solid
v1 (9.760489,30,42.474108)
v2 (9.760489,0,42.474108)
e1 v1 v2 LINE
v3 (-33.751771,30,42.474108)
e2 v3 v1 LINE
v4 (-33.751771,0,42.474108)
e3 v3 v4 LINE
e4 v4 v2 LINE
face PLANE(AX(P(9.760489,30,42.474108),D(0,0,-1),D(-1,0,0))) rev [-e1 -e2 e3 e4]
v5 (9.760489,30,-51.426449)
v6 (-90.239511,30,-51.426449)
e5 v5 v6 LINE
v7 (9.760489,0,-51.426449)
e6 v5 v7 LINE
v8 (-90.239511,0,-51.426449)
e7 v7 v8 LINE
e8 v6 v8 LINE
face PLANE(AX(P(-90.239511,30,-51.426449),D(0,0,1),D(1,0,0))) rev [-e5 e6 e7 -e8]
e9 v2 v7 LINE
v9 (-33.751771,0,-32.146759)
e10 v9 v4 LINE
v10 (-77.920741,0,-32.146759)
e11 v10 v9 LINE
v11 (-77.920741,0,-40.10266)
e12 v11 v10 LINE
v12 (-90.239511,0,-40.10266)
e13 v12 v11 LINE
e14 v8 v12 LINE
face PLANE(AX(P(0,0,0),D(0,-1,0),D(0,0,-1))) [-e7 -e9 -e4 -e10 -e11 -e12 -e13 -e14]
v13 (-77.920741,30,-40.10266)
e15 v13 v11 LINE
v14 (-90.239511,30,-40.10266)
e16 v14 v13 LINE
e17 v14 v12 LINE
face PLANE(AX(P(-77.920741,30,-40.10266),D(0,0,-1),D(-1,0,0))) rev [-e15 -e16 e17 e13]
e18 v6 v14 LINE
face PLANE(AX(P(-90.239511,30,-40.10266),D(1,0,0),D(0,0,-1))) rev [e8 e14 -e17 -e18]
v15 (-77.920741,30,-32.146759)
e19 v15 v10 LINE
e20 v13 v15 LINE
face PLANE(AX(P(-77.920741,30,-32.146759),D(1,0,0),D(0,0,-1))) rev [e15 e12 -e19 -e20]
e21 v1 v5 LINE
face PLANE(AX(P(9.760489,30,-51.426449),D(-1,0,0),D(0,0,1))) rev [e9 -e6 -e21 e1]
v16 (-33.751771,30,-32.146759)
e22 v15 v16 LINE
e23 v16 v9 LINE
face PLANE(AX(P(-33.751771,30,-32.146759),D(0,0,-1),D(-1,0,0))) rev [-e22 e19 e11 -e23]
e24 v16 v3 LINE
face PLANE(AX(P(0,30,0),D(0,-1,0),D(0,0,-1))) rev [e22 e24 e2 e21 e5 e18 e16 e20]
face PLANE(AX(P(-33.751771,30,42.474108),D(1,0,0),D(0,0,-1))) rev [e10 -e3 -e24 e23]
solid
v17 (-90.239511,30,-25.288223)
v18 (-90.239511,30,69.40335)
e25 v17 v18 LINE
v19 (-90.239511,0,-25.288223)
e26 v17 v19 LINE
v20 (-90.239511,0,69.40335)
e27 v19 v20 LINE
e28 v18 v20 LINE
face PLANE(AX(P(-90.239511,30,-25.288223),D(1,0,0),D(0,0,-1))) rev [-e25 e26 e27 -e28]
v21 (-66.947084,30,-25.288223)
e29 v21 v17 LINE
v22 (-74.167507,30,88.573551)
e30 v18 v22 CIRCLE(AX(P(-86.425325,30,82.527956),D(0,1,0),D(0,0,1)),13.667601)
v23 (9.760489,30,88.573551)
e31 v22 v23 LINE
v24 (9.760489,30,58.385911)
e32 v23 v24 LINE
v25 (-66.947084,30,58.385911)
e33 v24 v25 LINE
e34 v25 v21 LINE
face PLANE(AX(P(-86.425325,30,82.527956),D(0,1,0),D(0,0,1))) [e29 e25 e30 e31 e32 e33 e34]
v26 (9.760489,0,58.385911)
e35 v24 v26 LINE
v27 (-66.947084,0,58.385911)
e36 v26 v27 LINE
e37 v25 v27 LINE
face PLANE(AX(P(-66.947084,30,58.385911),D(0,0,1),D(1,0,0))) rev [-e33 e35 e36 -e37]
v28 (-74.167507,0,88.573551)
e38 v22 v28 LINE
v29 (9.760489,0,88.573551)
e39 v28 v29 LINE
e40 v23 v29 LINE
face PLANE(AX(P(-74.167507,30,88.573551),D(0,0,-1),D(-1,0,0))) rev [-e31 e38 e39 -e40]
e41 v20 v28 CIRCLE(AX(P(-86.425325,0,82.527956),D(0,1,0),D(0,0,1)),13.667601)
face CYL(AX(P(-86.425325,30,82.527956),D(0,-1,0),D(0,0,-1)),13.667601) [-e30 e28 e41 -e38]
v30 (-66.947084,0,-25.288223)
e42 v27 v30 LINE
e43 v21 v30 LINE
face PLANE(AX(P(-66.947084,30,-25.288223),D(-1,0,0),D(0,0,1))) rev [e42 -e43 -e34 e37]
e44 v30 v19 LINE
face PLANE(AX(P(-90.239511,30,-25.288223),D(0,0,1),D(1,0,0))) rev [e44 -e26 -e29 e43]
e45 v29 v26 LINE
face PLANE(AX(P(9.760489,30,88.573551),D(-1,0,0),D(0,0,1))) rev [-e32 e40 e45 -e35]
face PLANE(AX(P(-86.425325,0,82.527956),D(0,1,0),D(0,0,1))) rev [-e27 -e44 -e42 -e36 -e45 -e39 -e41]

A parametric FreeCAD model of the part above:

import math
import FreeCAD as App
import Part
import Sketcher

doc = App.newDocument("Part")
params = doc.addObject("Spreadsheet::Sheet", "Params")
for row, (alias, value) in enumerate([
    ("pad1_length", "30 mm"),
    ("sketch2_width", "100 mm"),
    ("pad2_length", "30 mm"),
], start=1):
    params.set(f"A{row}", alias)
    params.set(f"B{row}", "=" + value)
    params.setAlias(f"B{row}", alias)

body = doc.addObject("PartDesign::Body", "Body")

sketch1 = doc.addObject("Sketcher::SketchObject", "Sketch")
body.addObject(sketch1)
sketch1.AttachmentSupport = (doc.XZ_Plane, [""])
sketch1.MapMode = "FlatFace"
sketch1.addGeometry([
    Part.LineSegment(App.Vector(-67, -25, 0), App.Vector(-90, -25, 0)),
    Part.LineSegment(App.Vector(-90, -25, 0), App.Vector(-90, 69, 0)),
    Part.ArcOfCircle(Part.Circle(App.Vector(-86, 83, 0), App.Vector(0, 0, 1), 14), math.radians(26), math.radians(254)),
    Part.LineSegment(App.Vector(-74, 89, 0), App.Vector(10, 89, 0)),
    Part.LineSegment(App.Vector(10, 89, 0), App.Vector(10, 58, 0)),
    Part.LineSegment(App.Vector(10, 58, 0), App.Vector(-67, 58, 0)),
    Part.LineSegment(App.Vector(-67, 58, 0), App.Vector(-67, -25, 0)),
], False)
sketch1.addConstraint([
    Sketcher.Constraint("Coincident", 0, 2, 1, 1),
    Sketcher.Constraint("Coincident", 1, 2, 2, 2),
    Sketcher.Constraint("Coincident", 2, 1, 3, 1),
    Sketcher.Constraint("Coincident", 3, 2, 4, 1),
    Sketcher.Constraint("Coincident", 4, 2, 5, 1),
    Sketcher.Constraint("Coincident", 5, 2, 6, 1),
    Sketcher.Constraint("Coincident", 6, 2, 0, 1),
    Sketcher.Constraint("Horizontal", 0),
    Sketcher.Constraint("Vertical", 1),
    Sketcher.Constraint("Horizontal", 3),
    Sketcher.Constraint("Vertical", 4),
    Sketcher.Constraint("Horizontal", 5),
    Sketcher.Constraint("Vertical", 6),
    Sketcher.Constraint("DistanceX", 1, 2, 3, 2, 100.0),
    Sketcher.Constraint("Radius", 2, 13.667601),
    Sketcher.Constraint("DistanceY", 4, 2, 4, 1, 30.18764),
    Sketcher.Constraint("DistanceY", 1, 2, 2, 1, 19.170201),
    Sketcher.Constraint("DistanceX", 0, 2, 0, 1, 23.292427),
    Sketcher.Constraint("DistanceX", 3, 1, 3, 2, 83.927996),
    Sketcher.Constraint("DistanceY", 1, 1, 1, 2, 94.691573),
    Sketcher.Constraint("DistanceX", 0, 2, -1, 1, 90.239511),
    Sketcher.Constraint("DistanceY", -1, 1, 1, 2, 69.40335),
])
pad1 = doc.addObject("PartDesign::Pad", "Pad")
body.addObject(pad1)
pad1.Profile = sketch1
pad1.setExpression("Length", "Params.pad1_length")
pad1.Reversed = True
body2 = doc.addObject("PartDesign::Body", "Body001")

sketch2 = doc.addObject("Sketcher::SketchObject", "Sketch001")
body2.addObject(sketch2)
sketch2.AttachmentSupport = (doc.getObject("XZ_Plane001"), [""])
sketch2.MapMode = "FlatFace"
sketch2.addGeometry([
    Part.LineSegment(App.Vector(10, -51, 0), App.Vector(-90, -51, 0)),
    Part.LineSegment(App.Vector(-90, -51, 0), App.Vector(-90, -40, 0)),
    Part.LineSegment(App.Vector(-90, -40, 0), App.Vector(-78, -40, 0)),
    Part.LineSegment(App.Vector(-78, -40, 0), App.Vector(-78, -32, 0)),
    Part.LineSegment(App.Vector(-78, -32, 0), App.Vector(-34, -32, 0)),
    Part.LineSegment(App.Vector(-34, -32, 0), App.Vector(-34, 42, 0)),
    Part.LineSegment(App.Vector(-34, 42, 0), App.Vector(10, 42, 0)),
    Part.LineSegment(App.Vector(10, 42, 0), App.Vector(10, -51, 0)),
], False)
sketch2.addConstraint([
    Sketcher.Constraint("Coincident", 0, 2, 1, 1),
    Sketcher.Constraint("Coincident", 1, 2, 2, 1),
    Sketcher.Constraint("Coincident", 2, 2, 3, 1),
    Sketcher.Constraint("Coincident", 3, 2, 4, 1),
    Sketcher.Constraint("Coincident", 4, 2, 5, 1),
    Sketcher.Constraint("Coincident", 5, 2, 6, 1),
    Sketcher.Constraint("Coincident", 6, 2, 7, 1),
    Sketcher.Constraint("Coincident", 7, 2, 0, 1),
    Sketcher.Constraint("Horizontal", 0),
    Sketcher.Constraint("Vertical", 1),
    Sketcher.Constraint("Horizontal", 2),
    Sketcher.Constraint("Vertical", 3),
    Sketcher.Constraint("Horizontal", 4),
    Sketcher.Constraint("Vertical", 5),
    Sketcher.Constraint("Horizontal", 6),
    Sketcher.Constraint("Vertical", 7),
    Sketcher.Constraint("DistanceX", 0, 2, 0, 1, 100.0),
    Sketcher.Constraint("DistanceY", 3, 1, 3, 2, 7.955901),
    Sketcher.Constraint("DistanceX", 2, 1, 2, 2, 12.31877),
    Sketcher.Constraint("DistanceX", 4, 1, 4, 2, 44.168969),
    Sketcher.Constraint("DistanceY", 1, 1, 1, 2, 11.323789),
    Sketcher.Constraint("DistanceY", 5, 1, 5, 2, 74.620867),
    Sketcher.Constraint("DistanceX", 0, 2, -1, 1, 90.239511),
    Sketcher.Constraint("DistanceY", 0, 2, -1, 1, 51.426449),
])
sketch2.setExpression("Constraints[16]", "Params.sketch2_width")
pad2 = doc.addObject("PartDesign::Pad", "Pad001")
body2.addObject(pad2)
pad2.Profile = sketch2
pad2.setExpression("Length", "Params.pad2_length")
pad2.Reversed = True

doc.recompute()
